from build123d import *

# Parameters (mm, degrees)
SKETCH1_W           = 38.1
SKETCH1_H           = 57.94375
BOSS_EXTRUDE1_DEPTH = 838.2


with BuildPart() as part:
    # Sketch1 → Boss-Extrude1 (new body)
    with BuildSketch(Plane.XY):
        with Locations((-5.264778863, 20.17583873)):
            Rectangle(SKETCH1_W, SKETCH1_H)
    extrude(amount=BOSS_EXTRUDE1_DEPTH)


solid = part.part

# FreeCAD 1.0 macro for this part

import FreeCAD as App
import Part
import Sketcher

V = App.Vector
Q = App.Units.Quantity


def add_polygon(sketch, points):
    """Adds a closed chain of lines whose ends are joined by coincident constraints."""
    first, n = sketch.GeometryCount, len(points)
    for a, b in zip(points, points[1:] + points[:1]):
        sketch.addGeometry(Part.LineSegment(App.Vector(*a, 0), App.Vector(*b, 0)), False)
    for i in range(n):
        sketch.addConstraint(Sketcher.Constraint("Coincident", first + i, 2, first + (i + 1) % n, 1))

doc = App.newDocument("Part")
params = doc.addObject("Spreadsheet::Sheet", "Params")
for row, (alias, value) in enumerate([
    ("sketch1_width", "1.5 in"),
    ("sketch1_height", "2.28125 in"),
    ("pad1_length", "33 in"),
], start=1):
    params.set(f"A{row}", alias)
    params.set(f"B{row}", "=" + value)
    params.setAlias(f"B{row}", alias)

body = doc.addObject("PartDesign::Body", "Body")

# Sketch on XY plane
sketch1 = doc.addObject("Sketcher::SketchObject", "Sketch")
body.addObject(sketch1)
sketch1.AttachmentSupport = (doc.XY_Plane, [""])
sketch1.MapMode = "FlatFace"
add_polygon(sketch1, [(-24, 49), (-24, -9), (14, -9), (14, 49)])  # lines 0-3
sketch1.addConstraint(Sketcher.Constraint("Vertical", 0))
sketch1.addConstraint(Sketcher.Constraint("Horizontal", 1))
sketch1.addConstraint(Sketcher.Constraint("Vertical", 2))
sketch1.addConstraint(Sketcher.Constraint("Horizontal", 3))
sketch1.addConstraint(Sketcher.Constraint("DistanceX", 1, 1, 1, 2, Q("1.5 in")))
sketch1.addConstraint(Sketcher.Constraint("DistanceY", 0, 2, 0, 1, Q("2.28125 in")))
sketch1.addConstraint(Sketcher.Constraint("DistanceX", 0, 2, -1, 1, 24.314779))
sketch1.addConstraint(Sketcher.Constraint("DistanceY", 0, 2, -1, 1, 8.796036))
sketch1.setExpression("Constraints[8]", "Params.sketch1_width")
sketch1.setExpression("Constraints[9]", "Params.sketch1_height")
pad1 = doc.addObject("PartDesign::Pad", "Pad")
body.addObject(pad1)
pad1.Profile = sketch1
pad1.setExpression("Length", "Params.pad1_length")

doc.recompute()
